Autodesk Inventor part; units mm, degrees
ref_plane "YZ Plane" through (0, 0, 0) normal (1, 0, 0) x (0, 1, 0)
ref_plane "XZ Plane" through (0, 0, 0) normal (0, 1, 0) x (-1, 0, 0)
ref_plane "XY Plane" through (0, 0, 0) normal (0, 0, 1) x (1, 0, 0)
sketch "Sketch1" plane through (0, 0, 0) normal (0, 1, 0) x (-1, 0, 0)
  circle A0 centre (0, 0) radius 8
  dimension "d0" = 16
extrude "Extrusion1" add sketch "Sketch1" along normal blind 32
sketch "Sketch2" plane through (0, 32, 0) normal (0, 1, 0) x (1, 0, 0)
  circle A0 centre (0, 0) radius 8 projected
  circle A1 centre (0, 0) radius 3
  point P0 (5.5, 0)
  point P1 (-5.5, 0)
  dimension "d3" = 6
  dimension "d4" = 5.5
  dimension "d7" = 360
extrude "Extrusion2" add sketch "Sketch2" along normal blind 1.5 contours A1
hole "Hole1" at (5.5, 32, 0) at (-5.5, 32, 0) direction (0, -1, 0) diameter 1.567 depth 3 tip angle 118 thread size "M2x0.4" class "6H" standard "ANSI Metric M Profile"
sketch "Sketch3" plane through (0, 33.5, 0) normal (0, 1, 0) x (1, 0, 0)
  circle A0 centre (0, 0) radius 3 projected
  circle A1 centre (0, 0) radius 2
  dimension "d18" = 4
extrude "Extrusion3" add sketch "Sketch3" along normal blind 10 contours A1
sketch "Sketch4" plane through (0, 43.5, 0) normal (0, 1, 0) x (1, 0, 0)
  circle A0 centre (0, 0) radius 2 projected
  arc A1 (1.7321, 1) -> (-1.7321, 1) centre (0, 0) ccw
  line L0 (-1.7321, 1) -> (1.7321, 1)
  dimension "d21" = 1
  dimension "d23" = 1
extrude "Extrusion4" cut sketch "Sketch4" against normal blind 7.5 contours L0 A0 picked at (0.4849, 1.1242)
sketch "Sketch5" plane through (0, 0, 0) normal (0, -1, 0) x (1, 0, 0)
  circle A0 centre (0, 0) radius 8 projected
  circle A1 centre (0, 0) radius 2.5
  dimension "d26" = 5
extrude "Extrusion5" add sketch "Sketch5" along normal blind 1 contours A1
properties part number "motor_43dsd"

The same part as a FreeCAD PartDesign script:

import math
import FreeCAD as App
import Part
import Sketcher

V = App.Vector

doc = App.newDocument("Part")
body = doc.addObject("PartDesign::Body", "Body")

sketch1 = body.newObject("Sketcher::SketchObject", "Sketch")
sketch1.AttachmentSupport = (doc.getObject("XZ_Plane"), [""])
sketch1.MapMode = "FlatFace"
sketch1.addGeometry(Part.Circle(V(0, 0, 0), V(0, 0, 1), 8), False)
sketch1.addConstraint([
    Sketcher.Constraint("Coincident", 0, 3, -1, 1),
    Sketcher.Constraint("Diameter", 0, 16.0),
])
pad1 = body.newObject("PartDesign::Pad", "Pad")
pad1.Profile = sketch1
pad1.Length = 32
pad1.Reversed = True

sketch2 = body.newObject("Sketcher::SketchObject", "Sketch001")
sketch2.AttachmentSupport = (doc.getObject("XZ_Plane"), [""])
sketch2.MapMode = "FlatFace"
sketch2.AttachmentOffset = App.Placement(V(0, 0, -32), App.Rotation())
sketch2.addGeometry(Part.Circle(V(0, 0, 0), V(0, 0, 1), 3), False)
sketch2.addConstraint([
    Sketcher.Constraint("Coincident", 0, 3, -1, 1),
    Sketcher.Constraint("Diameter", 0, 6.0),
])
pad2 = body.newObject("PartDesign::Pad", "Pad001")
pad2.Profile = sketch2
pad2.Length = 1.5
pad2.Reversed = True

sketch3 = body.newObject("Sketcher::SketchObject", "Sketch002")
sketch3.AttachmentSupport = (doc.getObject("XZ_Plane"), [""])
sketch3.MapMode = "FlatFace"
sketch3.AttachmentOffset = App.Placement(V(0, 0, -32), App.Rotation())
sketch3.addGeometry([
    Part.Circle(V(5.5, 0, 0), V(0, 0, 1), 0.8),
    Part.Circle(V(-5.5, 0, 0), V(0, 0, 1), 0.8),
], False)
sketch3.addConstraint([
    Sketcher.Constraint("Equal", 0, 1),
    Sketcher.Constraint("Symmetric", 0, 3, 1, 3, -1, 1),
    Sketcher.Constraint("PointOnObject", 0, 3, -1),
    Sketcher.Constraint("Diameter", 0, 1.567),
    Sketcher.Constraint("DistanceX", 1, 3, 0, 3, 11.0),
])
doc.recompute()
hole = body.newObject("PartDesign::Hole", "Hole")
hole.Profile = sketch3
hole.ThreadType = "None"
hole.Diameter = 1.567
hole.DepthType = "Dimension"
hole.Depth = 3
hole.DrillPoint = "Angled"
hole.DrillPointAngle = 118
hole.Reversed = True

sketch4 = body.newObject("Sketcher::SketchObject", "Sketch003")
sketch4.AttachmentSupport = (doc.getObject("XZ_Plane"), [""])
sketch4.MapMode = "FlatFace"
sketch4.AttachmentOffset = App.Placement(V(0, 0, -33.5), App.Rotation())
sketch4.addGeometry(Part.Circle(V(0, 0, 0), V(0, 0, 1), 2), False)
sketch4.addConstraint([
    Sketcher.Constraint("Coincident", 0, 3, -1, 1),
    Sketcher.Constraint("Diameter", 0, 4.0),
])
pad3 = body.newObject("PartDesign::Pad", "Pad002")
pad3.Profile = sketch4
pad3.Length = 10
pad3.Reversed = True

sketch5 = body.newObject("Sketcher::SketchObject", "Sketch004")
sketch5.AttachmentSupport = (doc.getObject("XZ_Plane"), [""])
sketch5.MapMode = "FlatFace"
sketch5.AttachmentOffset = App.Placement(V(0, 0, -43.5), App.Rotation())
sketch5.addGeometry([
    Part.LineSegment(V(-1.7, -1, 0), V(1.7, -1, 0)),
    Part.ArcOfCircle(Part.Circle(V(0, 0, 0), V(0, 0, 1), 2), math.radians(-150), math.radians(-30)),
], False)
sketch5.addConstraint([
    Sketcher.Constraint("Coincident", 0, 1, 1, 1),
    Sketcher.Constraint("Coincident", 1, 2, 0, 2),
    Sketcher.Constraint("Horizontal", 0),
    Sketcher.Constraint("Coincident", 1, 3, -1, 1),
    Sketcher.Constraint("DistanceY", 0, 1, -1, 1, 1.0),
    Sketcher.Constraint("Radius", 1, 2.0),
])
pocket1 = body.newObject("PartDesign::Pocket", "Pocket")
pocket1.Profile = sketch5
pocket1.Length = 7.5
pocket1.Reversed = True

sketch6 = body.newObject("Sketcher::SketchObject", "Sketch005")
sketch6.AttachmentSupport = (doc.getObject("XZ_Plane"), [""])
sketch6.MapMode = "FlatFace"
sketch6.addGeometry(Part.Circle(V(0, 0, 0), V(0, 0, 1), 2.5), False)
sketch6.addConstraint([
    Sketcher.Constraint("Coincident", 0, 3, -1, 1),
    Sketcher.Constraint("Diameter", 0, 5.0),
])
pad4 = body.newObject("PartDesign::Pad", "Pad003")
pad4.Profile = sketch6
pad4.Length = 1

doc.recompute()
